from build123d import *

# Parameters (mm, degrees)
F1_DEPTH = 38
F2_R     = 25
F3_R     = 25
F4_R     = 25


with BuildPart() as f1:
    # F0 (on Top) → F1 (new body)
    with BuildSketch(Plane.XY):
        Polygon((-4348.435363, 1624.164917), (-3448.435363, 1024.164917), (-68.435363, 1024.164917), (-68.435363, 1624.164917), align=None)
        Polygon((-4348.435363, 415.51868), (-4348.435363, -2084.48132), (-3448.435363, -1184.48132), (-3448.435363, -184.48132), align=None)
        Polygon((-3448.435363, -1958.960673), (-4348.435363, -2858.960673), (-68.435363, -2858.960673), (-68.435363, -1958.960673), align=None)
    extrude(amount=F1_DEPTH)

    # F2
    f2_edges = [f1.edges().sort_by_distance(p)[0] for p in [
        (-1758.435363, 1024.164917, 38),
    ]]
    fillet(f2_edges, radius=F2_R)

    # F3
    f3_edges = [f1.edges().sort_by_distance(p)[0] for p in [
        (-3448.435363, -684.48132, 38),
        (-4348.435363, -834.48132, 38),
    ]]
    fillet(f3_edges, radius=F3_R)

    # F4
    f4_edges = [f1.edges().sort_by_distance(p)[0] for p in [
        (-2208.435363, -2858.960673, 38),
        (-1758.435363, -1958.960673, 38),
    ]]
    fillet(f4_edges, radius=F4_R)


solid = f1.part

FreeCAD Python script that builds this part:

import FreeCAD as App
import Part
import Sketcher

V = App.Vector
Q = App.Units.Quantity


def edges_at(feature, points):
    """Names of the edges that pass closest to the given points."""
    edges = feature.Shape.Edges
    near = lambda p: min(range(len(edges)), key=lambda i: edges[i].distToShape(Part.Vertex(*p))[0])
    return sorted({f"Edge{near(p) + 1}" for p in points})

doc = App.newDocument("Part")
params = doc.addObject("Spreadsheet::Sheet", "Params")
for row, (alias, value) in enumerate([
    ("sketch1_width", "3380 mm"),
    ("sketch1_width2", "4280 mm"),
    ("sketch1_height", "600 mm"),
    ("sketch1_height2", "2500 mm"),
    ("sketch1_height3", "1000 mm"),
    ("pad1_length", "38 mm"),
    ("fillet_radius", "25 mm"),
    ("fillet2_radius", "25 mm"),
    ("fillet3_radius", "25 mm"),
], start=1):
    params.set(f"A{row}", alias)
    params.set(f"B{row}", "=" + value)
    params.setAlias(f"B{row}", alias)

body = doc.addObject("PartDesign::Body", "Body")
body.AllowCompound = True

# Sketch on XY plane
sketch1 = body.newObject("Sketcher::SketchObject", "Sketch")
sketch1.AttachmentSupport = (doc.getObject("XY_Plane"), [""])
sketch1.MapMode = "FlatFace"
sketch1.addGeometry([
    Part.LineSegment(V(-4348, 1624, 0), V(-3448, 1024, 0)),  # 0
    Part.LineSegment(V(-3448, 1024, 0), V(-68, 1024, 0)),  # 1
    Part.LineSegment(V(-68, 1024, 0), V(-68, 1624, 0)),  # 2
    Part.LineSegment(V(-68, 1624, 0), V(-4348, 1624, 0)),  # 3
    Part.LineSegment(V(-4348, 416, 0), V(-4348, -2084, 0)),  # 4
    Part.LineSegment(V(-4348, -2084, 0), V(-3448, -1184, 0)),  # 5
    Part.LineSegment(V(-3448, -1184, 0), V(-3448, -184, 0)),  # 6
    Part.LineSegment(V(-3448, -184, 0), V(-4348, 416, 0)),  # 7
    Part.LineSegment(V(-3448, -1959, 0), V(-4348, -2859, 0)),  # 8
    Part.LineSegment(V(-4348, -2859, 0), V(-68, -2859, 0)),  # 9
    Part.LineSegment(V(-68, -2859, 0), V(-68, -1959, 0)),  # 10
    Part.LineSegment(V(-68, -1959, 0), V(-3448, -1959, 0)),  # 11
], False)
sketch1.addConstraint([
    Sketcher.Constraint("Coincident", 0, 2, 1, 1),
    Sketcher.Constraint("Coincident", 1, 2, 2, 1),
    Sketcher.Constraint("Coincident", 2, 2, 3, 1),
    Sketcher.Constraint("Coincident", 3, 2, 0, 1),
    Sketcher.Constraint("Coincident", 4, 2, 5, 1),
    Sketcher.Constraint("Coincident", 5, 2, 6, 1),
    Sketcher.Constraint("Coincident", 6, 2, 7, 1),
    Sketcher.Constraint("Coincident", 7, 2, 4, 1),
    Sketcher.Constraint("Coincident", 8, 2, 9, 1),
    Sketcher.Constraint("Coincident", 9, 2, 10, 1),
    Sketcher.Constraint("Coincident", 10, 2, 11, 1),
    Sketcher.Constraint("Coincident", 11, 2, 8, 1),
    Sketcher.Constraint("Horizontal", 1),
    Sketcher.Constraint("Vertical", 2),
    Sketcher.Constraint("Horizontal", 3),
    Sketcher.Constraint("Vertical", 4),
    Sketcher.Constraint("Vertical", 6),
    Sketcher.Constraint("Horizontal", 9),
    Sketcher.Constraint("Vertical", 10),
    Sketcher.Constraint("Horizontal", 11),
    Sketcher.Constraint("Parallel", 0, 7),
    Sketcher.Constraint("Parallel", 5, 8),
    Sketcher.Constraint("Vertical", 3, 2, 4, 2),
    Sketcher.Constraint("Vertical", 0, 2, 5, 2),
    Sketcher.Constraint("Vertical", 7, 2, 8, 2),
    Sketcher.Constraint("Vertical", 2, 2, 9, 2),
    Sketcher.Constraint("Vertical", 6, 2, 11, 2),
    Sketcher.Constraint("DistanceX", 1, 1, 1, 2, Q("3380 mm")),
    Sketcher.Constraint("DistanceX", 3, 2, 3, 1, Q("4280 mm")),
    Sketcher.Constraint("DistanceY", 2, 1, 2, 2, Q("600 mm")),
    Sketcher.Constraint("DistanceY", 4, 2, 4, 1, Q("2500 mm")),
    Sketcher.Constraint("DistanceY", 6, 1, 6, 2, Q("1000 mm")),
    Sketcher.Constraint("DistanceY", 4, 2, -1, 1, Q("2084.48132 mm")),
    Sketcher.Constraint("DistanceY", 8, 2, 0, 2, Q("3883.12559 mm")),
    Sketcher.Constraint("DistanceX", 0, 2, -1, 1, Q("3448.435363 mm")),
    Sketcher.Constraint("DistanceY", -1, 1, 0, 2, Q("1024.164917 mm")),
])
sketch1.setExpression("Constraints[27]", "Params.sketch1_width")
sketch1.setExpression("Constraints[28]", "Params.sketch1_width2")
sketch1.setExpression("Constraints[29]", "Params.sketch1_height")
sketch1.setExpression("Constraints[30]", "Params.sketch1_height2")
sketch1.setExpression("Constraints[31]", "Params.sketch1_height3")
pad1 = body.newObject("PartDesign::Pad", "Pad")
pad1.Profile = sketch1
pad1.setExpression("Length", "Params.pad1_length")
doc.recompute()

fillet = body.newObject("PartDesign::Fillet", "Fillet")
fillet.Base = (pad1, edges_at(pad1, [(-1758.435, 1024.165, 38)]))
fillet.setExpression("Radius", "Params.fillet_radius")
doc.recompute()

fillet2 = body.newObject("PartDesign::Fillet", "Fillet001")
fillet2.Base = (fillet, edges_at(fillet, [(-3448.435, -684.481, 38), (-4348.435, -834.481, 38)]))
fillet2.setExpression("Radius", "Params.fillet2_radius")
doc.recompute()

fillet3 = body.newObject("PartDesign::Fillet", "Fillet002")
fillet3.Base = (fillet2, edges_at(fillet2, [(-2208.435, -2858.961, 38), (-1758.435, -1958.961, 38)]))
fillet3.setExpression("Radius", "Params.fillet3_radius")

doc.recompute()
